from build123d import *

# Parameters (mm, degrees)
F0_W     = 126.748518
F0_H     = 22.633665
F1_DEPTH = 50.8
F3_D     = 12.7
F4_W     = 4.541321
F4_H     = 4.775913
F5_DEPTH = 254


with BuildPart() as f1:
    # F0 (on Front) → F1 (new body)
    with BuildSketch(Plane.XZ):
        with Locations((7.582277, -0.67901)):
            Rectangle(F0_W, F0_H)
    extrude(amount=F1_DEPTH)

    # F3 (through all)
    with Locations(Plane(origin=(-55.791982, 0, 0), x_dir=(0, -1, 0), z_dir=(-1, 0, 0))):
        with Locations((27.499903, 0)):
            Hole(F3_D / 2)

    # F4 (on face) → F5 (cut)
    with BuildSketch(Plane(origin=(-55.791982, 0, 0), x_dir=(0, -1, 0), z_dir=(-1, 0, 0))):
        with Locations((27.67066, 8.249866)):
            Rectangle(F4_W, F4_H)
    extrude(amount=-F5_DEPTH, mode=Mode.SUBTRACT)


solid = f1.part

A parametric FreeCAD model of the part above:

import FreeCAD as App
import Part
import Sketcher

V = App.Vector
Q = App.Units.Quantity

doc = App.newDocument("Part")
body = doc.addObject("PartDesign::Body", "Body")

sketch1 = body.newObject("Sketcher::SketchObject", "Sketch")
sketch1.AttachmentSupport = (doc.getObject("XZ_Plane"), [""])
sketch1.MapMode = "FlatFace"
sketch1.addGeometry([
    Part.LineSegment(V(-56, 11, 0), V(-56, -12, 0)),
    Part.LineSegment(V(-56, -12, 0), V(71, -12, 0)),
    Part.LineSegment(V(71, -12, 0), V(71, 11, 0)),
    Part.LineSegment(V(71, 11, 0), V(-56, 11, 0)),
], False)
sketch1.addConstraint([
    Sketcher.Constraint("Coincident", 0, 2, 1, 1),
    Sketcher.Constraint("Coincident", 1, 2, 2, 1),
    Sketcher.Constraint("Coincident", 2, 2, 3, 1),
    Sketcher.Constraint("Coincident", 3, 2, 0, 1),
    Sketcher.Constraint("Vertical", 0),
    Sketcher.Constraint("Horizontal", 1),
    Sketcher.Constraint("Vertical", 2),
    Sketcher.Constraint("Horizontal", 3),
    Sketcher.Constraint("DistanceX", 1, 1, 1, 2, 126.748518),
    Sketcher.Constraint("DistanceY", 0, 2, 0, 1, 22.633665),
    Sketcher.Constraint("DistanceX", 0, 2, -1, 1, 55.791982),
    Sketcher.Constraint("DistanceY", 0, 2, -1, 1, 11.995843),
])
pad1 = body.newObject("PartDesign::Pad", "Pad")
pad1.Profile = sketch1
pad1.Length = Q("2 in")

sketch2 = body.newObject("Sketcher::SketchObject", "Sketch001")
sketch2.AttachmentSupport = (doc.getObject("YZ_Plane"), [""])
sketch2.MapMode = "FlatFace"
sketch2.AttachmentOffset = App.Placement(V(0, 0, -55.791982), App.Rotation())
sketch2.addGeometry(Part.Circle(V(-27, 0, 0), V(0, 0, 1), 6), False)
sketch2.addConstraint([
    Sketcher.Constraint("PointOnObject", 0, 3, -1),
    Sketcher.Constraint("Diameter", 0, Q("0.5 in")),
    Sketcher.Constraint("DistanceX", 0, 3, -1, 1, 27.499903),
])
doc.recompute()
hole = body.newObject("PartDesign::Hole", "Hole")
hole.Profile = sketch2
hole.ThreadType = "None"
hole.Diameter = Q("0.5 in")
hole.DepthType = "ThroughAll"
hole.Reversed = True

sketch3 = body.newObject("Sketcher::SketchObject", "Sketch002")
sketch3.AttachmentSupport = (doc.getObject("YZ_Plane"), [""])
sketch3.MapMode = "FlatFace"
sketch3.AttachmentOffset = App.Placement(V(0, 0, -55.791982), App.Rotation())
sketch3.addGeometry([
    Part.LineSegment(V(-25.4, 10.6, 0), V(-25.4, 5.9, 0)),
    Part.LineSegment(V(-25.4, 5.9, 0), V(-29.9, 5.9, 0)),
    Part.LineSegment(V(-29.9, 5.9, 0), V(-29.9, 10.6, 0)),
    Part.LineSegment(V(-29.9, 10.6, 0), V(-25.4, 10.6, 0)),
], False)
sketch3.addConstraint([
    Sketcher.Constraint("Coincident", 0, 2, 1, 1),
    Sketcher.Constraint("Coincident", 1, 2, 2, 1),
    Sketcher.Constraint("Coincident", 2, 2, 3, 1),
    Sketcher.Constraint("Coincident", 3, 2, 0, 1),
    Sketcher.Constraint("Vertical", 0),
    Sketcher.Constraint("Horizontal", 1),
    Sketcher.Constraint("Vertical", 2),
    Sketcher.Constraint("Horizontal", 3),
    Sketcher.Constraint("DistanceX", 0, 2, -1, 1, Q("1 in")),
    Sketcher.Constraint("DistanceX", 1, 2, 1, 1, 4.541321),
    Sketcher.Constraint("DistanceY", 0, 2, 0, 1, 4.775913),
    Sketcher.Constraint("DistanceY", -1, 1, 0, 2, 5.86191),
])
pocket1 = body.newObject("PartDesign::Pocket", "Pocket")
pocket1.Profile = sketch3
pocket1.Length = Q("10 in")
pocket1.Reversed = True

doc.recompute()
